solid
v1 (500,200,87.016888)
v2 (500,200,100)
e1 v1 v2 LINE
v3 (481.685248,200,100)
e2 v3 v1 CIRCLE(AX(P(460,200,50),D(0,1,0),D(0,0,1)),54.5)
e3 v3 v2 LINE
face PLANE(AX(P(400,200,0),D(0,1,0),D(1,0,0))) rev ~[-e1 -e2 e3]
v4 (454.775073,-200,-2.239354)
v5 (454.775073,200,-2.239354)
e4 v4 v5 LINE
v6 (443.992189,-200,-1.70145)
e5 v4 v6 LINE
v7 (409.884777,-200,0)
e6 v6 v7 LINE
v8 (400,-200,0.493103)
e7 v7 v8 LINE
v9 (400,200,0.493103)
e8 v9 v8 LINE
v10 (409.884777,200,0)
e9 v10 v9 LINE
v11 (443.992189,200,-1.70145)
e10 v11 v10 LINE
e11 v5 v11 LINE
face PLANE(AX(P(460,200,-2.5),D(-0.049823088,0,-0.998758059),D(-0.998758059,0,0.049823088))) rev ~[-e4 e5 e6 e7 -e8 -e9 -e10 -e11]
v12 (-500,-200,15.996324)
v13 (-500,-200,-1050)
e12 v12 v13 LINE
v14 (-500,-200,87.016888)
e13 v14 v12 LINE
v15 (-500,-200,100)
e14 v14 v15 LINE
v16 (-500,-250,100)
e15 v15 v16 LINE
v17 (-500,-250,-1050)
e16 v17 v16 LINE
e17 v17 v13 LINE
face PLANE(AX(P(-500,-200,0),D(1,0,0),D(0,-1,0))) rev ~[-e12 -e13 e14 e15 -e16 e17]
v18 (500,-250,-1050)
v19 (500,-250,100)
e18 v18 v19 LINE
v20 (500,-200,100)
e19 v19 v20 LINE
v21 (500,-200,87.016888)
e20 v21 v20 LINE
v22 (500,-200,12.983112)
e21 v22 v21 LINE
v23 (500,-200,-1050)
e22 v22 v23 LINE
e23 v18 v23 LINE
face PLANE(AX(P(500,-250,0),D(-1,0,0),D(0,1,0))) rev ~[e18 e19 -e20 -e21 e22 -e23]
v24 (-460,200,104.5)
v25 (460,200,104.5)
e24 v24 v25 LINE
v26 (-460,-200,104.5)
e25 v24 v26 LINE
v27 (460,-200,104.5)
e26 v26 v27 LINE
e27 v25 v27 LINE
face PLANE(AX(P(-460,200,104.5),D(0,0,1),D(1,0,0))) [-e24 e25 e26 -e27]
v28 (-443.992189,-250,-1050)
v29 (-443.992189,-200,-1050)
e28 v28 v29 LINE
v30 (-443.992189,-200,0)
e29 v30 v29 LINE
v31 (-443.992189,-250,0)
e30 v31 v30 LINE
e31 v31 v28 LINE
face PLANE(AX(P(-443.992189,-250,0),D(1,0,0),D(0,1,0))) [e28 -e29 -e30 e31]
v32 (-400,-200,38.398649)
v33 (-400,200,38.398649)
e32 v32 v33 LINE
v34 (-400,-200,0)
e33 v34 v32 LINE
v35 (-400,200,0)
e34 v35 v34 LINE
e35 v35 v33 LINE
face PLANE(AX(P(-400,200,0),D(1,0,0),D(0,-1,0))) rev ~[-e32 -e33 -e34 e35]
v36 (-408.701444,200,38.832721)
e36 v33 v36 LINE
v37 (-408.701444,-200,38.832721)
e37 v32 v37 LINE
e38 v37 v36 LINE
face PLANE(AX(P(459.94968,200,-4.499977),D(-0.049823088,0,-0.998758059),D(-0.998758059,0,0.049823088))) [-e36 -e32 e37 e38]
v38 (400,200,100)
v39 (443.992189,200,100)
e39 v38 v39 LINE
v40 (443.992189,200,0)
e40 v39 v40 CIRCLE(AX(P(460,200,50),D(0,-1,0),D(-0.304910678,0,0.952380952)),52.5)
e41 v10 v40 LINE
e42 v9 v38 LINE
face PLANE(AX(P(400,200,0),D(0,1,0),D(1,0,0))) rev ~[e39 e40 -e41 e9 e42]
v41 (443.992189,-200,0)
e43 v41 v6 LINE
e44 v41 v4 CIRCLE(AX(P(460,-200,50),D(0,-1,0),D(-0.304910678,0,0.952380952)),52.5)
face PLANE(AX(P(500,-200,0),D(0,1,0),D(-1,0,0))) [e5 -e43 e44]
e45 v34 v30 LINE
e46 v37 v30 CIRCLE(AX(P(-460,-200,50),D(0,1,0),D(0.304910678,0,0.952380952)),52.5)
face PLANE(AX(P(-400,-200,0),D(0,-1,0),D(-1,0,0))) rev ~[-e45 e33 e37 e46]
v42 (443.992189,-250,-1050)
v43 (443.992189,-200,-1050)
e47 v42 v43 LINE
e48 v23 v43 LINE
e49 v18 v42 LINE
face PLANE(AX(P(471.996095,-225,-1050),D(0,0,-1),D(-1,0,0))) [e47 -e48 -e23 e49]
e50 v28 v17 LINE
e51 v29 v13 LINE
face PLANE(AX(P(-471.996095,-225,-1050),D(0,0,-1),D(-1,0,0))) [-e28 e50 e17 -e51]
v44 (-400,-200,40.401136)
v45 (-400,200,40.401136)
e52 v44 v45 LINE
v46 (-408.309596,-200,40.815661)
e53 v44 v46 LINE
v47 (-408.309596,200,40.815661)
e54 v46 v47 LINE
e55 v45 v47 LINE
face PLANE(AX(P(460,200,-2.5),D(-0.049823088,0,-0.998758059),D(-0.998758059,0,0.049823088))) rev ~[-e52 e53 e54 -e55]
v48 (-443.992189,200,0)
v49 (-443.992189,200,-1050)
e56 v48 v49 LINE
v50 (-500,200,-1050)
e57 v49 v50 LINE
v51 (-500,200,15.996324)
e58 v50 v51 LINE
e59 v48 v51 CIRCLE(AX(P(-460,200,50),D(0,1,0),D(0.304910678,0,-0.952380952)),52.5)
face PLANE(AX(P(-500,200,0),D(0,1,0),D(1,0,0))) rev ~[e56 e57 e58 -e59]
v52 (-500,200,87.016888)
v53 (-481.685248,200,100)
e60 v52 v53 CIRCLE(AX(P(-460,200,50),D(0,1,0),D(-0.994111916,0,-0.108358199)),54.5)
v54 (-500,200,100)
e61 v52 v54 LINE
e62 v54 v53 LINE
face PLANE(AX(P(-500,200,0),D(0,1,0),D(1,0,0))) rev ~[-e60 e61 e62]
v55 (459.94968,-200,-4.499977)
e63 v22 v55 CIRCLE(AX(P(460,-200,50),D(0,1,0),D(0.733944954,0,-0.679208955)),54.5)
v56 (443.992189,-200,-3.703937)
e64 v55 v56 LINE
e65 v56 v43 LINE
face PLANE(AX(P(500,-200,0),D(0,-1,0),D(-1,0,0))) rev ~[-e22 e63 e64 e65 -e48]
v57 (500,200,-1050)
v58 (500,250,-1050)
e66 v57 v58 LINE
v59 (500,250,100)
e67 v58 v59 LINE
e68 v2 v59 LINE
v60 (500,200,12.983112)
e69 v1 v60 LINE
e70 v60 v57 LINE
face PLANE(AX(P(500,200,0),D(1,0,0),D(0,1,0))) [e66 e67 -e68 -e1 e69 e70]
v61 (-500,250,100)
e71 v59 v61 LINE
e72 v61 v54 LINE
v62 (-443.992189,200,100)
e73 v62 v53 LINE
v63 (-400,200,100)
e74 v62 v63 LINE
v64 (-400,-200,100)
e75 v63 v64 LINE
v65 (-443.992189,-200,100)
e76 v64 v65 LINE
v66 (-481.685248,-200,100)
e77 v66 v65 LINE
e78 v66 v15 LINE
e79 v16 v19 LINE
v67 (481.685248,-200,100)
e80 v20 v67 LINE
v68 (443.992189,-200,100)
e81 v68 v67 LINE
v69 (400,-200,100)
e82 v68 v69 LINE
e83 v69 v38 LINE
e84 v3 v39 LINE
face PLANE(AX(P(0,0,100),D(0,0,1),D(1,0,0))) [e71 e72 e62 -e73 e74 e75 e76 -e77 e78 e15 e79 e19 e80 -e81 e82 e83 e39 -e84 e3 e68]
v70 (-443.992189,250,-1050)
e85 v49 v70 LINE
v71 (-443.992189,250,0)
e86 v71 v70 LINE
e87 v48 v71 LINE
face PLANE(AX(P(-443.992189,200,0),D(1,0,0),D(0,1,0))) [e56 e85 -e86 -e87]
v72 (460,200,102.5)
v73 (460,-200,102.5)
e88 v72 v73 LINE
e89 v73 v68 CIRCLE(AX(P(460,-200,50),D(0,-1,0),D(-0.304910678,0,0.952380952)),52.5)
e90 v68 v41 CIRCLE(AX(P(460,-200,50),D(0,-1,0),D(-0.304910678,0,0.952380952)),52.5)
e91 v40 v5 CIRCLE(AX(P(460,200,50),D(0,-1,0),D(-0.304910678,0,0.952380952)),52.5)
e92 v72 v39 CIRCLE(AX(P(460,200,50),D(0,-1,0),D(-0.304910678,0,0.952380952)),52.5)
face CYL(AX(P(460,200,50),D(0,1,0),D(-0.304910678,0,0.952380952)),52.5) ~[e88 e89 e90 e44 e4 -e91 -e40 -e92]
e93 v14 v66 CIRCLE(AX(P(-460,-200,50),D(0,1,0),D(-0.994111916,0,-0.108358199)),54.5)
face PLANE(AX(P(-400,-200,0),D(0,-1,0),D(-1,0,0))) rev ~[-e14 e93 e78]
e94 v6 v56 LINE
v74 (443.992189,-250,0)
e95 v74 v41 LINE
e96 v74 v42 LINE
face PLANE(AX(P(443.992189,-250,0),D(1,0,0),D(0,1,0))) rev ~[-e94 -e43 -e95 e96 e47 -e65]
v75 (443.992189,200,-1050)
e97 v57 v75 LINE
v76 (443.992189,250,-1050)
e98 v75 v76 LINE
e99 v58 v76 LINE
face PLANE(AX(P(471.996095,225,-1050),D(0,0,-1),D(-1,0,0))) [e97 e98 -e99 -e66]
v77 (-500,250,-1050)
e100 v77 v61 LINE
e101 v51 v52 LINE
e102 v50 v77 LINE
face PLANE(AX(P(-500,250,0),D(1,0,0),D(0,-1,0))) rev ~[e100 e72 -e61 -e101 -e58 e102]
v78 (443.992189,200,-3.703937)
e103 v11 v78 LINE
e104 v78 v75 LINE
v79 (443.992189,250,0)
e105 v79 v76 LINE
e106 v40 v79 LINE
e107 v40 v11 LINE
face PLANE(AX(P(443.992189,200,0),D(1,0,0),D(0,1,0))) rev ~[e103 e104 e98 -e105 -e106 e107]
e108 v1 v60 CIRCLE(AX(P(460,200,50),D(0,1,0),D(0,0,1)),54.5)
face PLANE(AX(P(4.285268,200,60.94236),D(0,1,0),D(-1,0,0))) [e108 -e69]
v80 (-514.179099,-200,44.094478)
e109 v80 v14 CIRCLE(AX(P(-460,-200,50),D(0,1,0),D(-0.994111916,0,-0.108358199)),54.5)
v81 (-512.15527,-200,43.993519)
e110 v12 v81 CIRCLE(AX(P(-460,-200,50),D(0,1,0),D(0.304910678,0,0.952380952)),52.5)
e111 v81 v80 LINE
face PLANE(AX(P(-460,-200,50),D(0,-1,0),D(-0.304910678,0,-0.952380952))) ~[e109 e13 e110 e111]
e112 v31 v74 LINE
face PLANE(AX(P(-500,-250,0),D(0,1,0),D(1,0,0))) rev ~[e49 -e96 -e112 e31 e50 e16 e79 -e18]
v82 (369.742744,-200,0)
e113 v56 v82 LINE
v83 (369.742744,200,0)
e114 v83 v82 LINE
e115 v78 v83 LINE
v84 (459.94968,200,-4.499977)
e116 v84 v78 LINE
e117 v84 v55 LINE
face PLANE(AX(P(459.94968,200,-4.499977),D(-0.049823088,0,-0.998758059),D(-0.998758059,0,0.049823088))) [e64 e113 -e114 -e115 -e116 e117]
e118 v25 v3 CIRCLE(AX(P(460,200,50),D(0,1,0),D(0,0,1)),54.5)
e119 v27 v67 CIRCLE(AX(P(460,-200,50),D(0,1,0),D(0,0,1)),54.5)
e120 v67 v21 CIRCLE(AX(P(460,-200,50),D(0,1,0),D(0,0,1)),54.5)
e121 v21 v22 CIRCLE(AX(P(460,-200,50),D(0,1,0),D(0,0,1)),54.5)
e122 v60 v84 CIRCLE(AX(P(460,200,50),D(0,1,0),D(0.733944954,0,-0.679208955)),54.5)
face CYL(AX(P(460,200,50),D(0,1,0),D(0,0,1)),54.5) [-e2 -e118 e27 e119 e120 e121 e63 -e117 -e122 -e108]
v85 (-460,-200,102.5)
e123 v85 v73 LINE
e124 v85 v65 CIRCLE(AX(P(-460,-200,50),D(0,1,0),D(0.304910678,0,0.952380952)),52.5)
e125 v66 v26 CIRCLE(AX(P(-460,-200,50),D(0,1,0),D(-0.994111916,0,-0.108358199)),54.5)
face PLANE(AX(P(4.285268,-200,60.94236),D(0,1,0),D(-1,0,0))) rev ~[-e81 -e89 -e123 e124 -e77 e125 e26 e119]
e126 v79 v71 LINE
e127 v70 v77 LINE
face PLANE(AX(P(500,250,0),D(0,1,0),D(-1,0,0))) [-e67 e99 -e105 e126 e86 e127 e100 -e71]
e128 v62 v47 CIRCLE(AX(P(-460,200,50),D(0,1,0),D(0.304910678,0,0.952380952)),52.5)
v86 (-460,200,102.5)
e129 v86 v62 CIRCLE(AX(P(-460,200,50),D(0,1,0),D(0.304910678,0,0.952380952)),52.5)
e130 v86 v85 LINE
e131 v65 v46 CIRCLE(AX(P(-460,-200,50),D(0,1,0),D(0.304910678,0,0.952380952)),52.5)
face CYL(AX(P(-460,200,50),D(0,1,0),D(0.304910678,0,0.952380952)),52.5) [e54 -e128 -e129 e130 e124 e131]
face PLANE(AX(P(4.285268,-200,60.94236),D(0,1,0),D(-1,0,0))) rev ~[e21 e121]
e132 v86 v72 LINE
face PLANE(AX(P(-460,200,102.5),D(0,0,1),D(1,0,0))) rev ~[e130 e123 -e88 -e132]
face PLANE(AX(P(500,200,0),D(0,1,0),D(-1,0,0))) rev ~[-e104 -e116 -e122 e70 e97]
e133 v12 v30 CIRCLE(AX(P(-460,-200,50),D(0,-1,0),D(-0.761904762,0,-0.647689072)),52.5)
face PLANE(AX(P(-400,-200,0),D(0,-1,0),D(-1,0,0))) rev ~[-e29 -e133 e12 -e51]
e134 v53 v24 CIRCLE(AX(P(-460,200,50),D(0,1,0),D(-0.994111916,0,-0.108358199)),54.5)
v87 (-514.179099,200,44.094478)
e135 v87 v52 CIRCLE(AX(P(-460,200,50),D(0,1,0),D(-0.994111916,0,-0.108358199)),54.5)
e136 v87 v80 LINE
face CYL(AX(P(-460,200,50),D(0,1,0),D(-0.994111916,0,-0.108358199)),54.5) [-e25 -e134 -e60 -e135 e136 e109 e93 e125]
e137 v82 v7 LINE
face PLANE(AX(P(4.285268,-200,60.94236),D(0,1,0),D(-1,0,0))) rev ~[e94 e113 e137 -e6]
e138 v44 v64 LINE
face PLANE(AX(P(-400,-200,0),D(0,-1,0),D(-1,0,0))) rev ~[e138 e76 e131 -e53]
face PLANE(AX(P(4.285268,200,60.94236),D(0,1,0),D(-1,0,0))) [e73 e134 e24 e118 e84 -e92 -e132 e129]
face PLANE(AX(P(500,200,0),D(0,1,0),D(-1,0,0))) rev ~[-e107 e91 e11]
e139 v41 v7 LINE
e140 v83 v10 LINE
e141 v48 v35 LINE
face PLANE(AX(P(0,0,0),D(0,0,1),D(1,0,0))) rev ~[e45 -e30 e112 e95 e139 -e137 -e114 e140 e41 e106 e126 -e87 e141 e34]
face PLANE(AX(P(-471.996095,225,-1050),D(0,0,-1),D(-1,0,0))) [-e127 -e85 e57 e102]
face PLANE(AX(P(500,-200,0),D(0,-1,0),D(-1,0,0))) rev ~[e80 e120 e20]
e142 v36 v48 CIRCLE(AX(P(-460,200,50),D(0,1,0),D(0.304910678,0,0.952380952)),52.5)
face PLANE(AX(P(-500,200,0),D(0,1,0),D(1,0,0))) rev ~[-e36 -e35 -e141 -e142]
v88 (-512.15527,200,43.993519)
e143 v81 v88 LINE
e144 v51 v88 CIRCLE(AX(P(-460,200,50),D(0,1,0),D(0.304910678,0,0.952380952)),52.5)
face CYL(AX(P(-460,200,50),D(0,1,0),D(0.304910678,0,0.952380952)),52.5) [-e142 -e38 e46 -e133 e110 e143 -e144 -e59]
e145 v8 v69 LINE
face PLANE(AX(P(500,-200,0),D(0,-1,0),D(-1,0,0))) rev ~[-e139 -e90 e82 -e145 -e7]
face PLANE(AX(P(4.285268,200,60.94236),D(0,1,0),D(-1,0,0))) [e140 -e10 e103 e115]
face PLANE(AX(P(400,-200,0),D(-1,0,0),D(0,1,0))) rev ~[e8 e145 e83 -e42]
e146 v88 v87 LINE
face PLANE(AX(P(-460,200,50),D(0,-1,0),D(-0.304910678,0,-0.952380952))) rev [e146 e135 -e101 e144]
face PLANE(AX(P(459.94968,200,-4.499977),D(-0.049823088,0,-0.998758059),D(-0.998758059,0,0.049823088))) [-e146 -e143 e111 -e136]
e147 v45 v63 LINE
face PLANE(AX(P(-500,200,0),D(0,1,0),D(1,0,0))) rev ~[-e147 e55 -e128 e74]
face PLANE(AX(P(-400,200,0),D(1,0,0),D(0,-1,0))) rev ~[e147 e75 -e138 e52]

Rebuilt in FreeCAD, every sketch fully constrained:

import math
import FreeCAD as App
import Part
import Sketcher

V = App.Vector

doc = App.newDocument("Part")
body = doc.addObject("PartDesign::Body", "Body")

sketch1 = body.newObject("Sketcher::SketchObject", "Sketch")
sketch1.AttachmentSupport = (doc.getObject("XY_Plane"), [""])
sketch1.MapMode = "FlatFace"
sketch1.addGeometry(Part.LineSegment(V(-500, 200, 0), V(-400, 200, 0)), False)
sketch1.addGeometry(Part.LineSegment(V(-400, 200, 0), V(-400, -200, 0)), False)
sketch1.addGeometry(Part.LineSegment(V(-400, -200, 0), V(-500, -200, 0)), False)
sketch1.addGeometry(Part.LineSegment(V(-500, -200, 0), V(-500, -250, 0)), False)
sketch1.addGeometry(Part.LineSegment(V(-500, -250, 0), V(500, -250, 0)), False)
sketch1.addGeometry(Part.LineSegment(V(500, -250, 0), V(500, -200, 0)), False)
sketch1.addGeometry(Part.LineSegment(V(500, -200, 0), V(400, -200, 0)), False)
sketch1.addGeometry(Part.LineSegment(V(400, -200, 0), V(400, 200, 0)), False)
sketch1.addGeometry(Part.LineSegment(V(400, 200, 0), V(500, 200, 0)), False)
sketch1.addGeometry(Part.LineSegment(V(500, 200, 0), V(500, 250, 0)), False)
sketch1.addGeometry(Part.LineSegment(V(500, 250, 0), V(-500, 250, 0)), False)
sketch1.addGeometry(Part.LineSegment(V(-500, 250, 0), V(-500, 200, 0)), False)
sketch1.addConstraint(Sketcher.Constraint("Coincident", 0, 2, 1, 1))
sketch1.addConstraint(Sketcher.Constraint("Coincident", 1, 2, 2, 1))
sketch1.addConstraint(Sketcher.Constraint("Coincident", 2, 2, 3, 1))
sketch1.addConstraint(Sketcher.Constraint("Coincident", 3, 2, 4, 1))
sketch1.addConstraint(Sketcher.Constraint("Coincident", 4, 2, 5, 1))
sketch1.addConstraint(Sketcher.Constraint("Coincident", 5, 2, 6, 1))
sketch1.addConstraint(Sketcher.Constraint("Coincident", 6, 2, 7, 1))
sketch1.addConstraint(Sketcher.Constraint("Coincident", 7, 2, 8, 1))
sketch1.addConstraint(Sketcher.Constraint("Coincident", 8, 2, 9, 1))
sketch1.addConstraint(Sketcher.Constraint("Coincident", 9, 2, 10, 1))
sketch1.addConstraint(Sketcher.Constraint("Coincident", 10, 2, 11, 1))
sketch1.addConstraint(Sketcher.Constraint("Coincident", 11, 2, 0, 1))
sketch1.addConstraint(Sketcher.Constraint("Horizontal", 0))
sketch1.addConstraint(Sketcher.Constraint("Vertical", 1))
sketch1.addConstraint(Sketcher.Constraint("Horizontal", 2))
sketch1.addConstraint(Sketcher.Constraint("Vertical", 3))
sketch1.addConstraint(Sketcher.Constraint("Horizontal", 4))
sketch1.addConstraint(Sketcher.Constraint("Vertical", 5))
sketch1.addConstraint(Sketcher.Constraint("Horizontal", 6))
sketch1.addConstraint(Sketcher.Constraint("Vertical", 7))
sketch1.addConstraint(Sketcher.Constraint("Horizontal", 8))
sketch1.addConstraint(Sketcher.Constraint("Vertical", 9))
sketch1.addConstraint(Sketcher.Constraint("Horizontal", 10))
sketch1.addConstraint(Sketcher.Constraint("Vertical", 11))
sketch1.addConstraint(Sketcher.Constraint("Symmetric", 0, 2, 6, 2, -1, 1))
sketch1.addConstraint(Sketcher.Constraint("Symmetric", 2, 2, 8, 2, -1, 1))
sketch1.addConstraint(Sketcher.Constraint("Symmetric", 4, 2, 10, 2, -1, 1))
sketch1.addConstraint(Sketcher.Constraint("Symmetric", 2, 2, 5, 2, -2))
sketch1.addConstraint(Sketcher.Constraint("DistanceX", 0, 1, 0, 2, 100.0))
sketch1.addConstraint(Sketcher.Constraint("DistanceX", 4, 1, 4, 2, 1000.0))
sketch1.addConstraint(Sketcher.Constraint("DistanceY", 1, 2, 1, 1, 400.0))
sketch1.addConstraint(Sketcher.Constraint("DistanceY", 3, 2, 3, 1, 50.0))
pad1 = body.newObject("PartDesign::Pad", "Pad")
pad1.Profile = sketch1
pad1.Length = 100

sketch2 = body.newObject("Sketcher::SketchObject", "Sketch001")
sketch2.AttachmentSupport = (doc.getObject("XZ_Plane"), [""])
sketch2.MapMode = "FlatFace"
sketch2.AttachmentOffset = App.Placement(V(0, 0, -200), App.Rotation())
sketch2.addGeometry(Part.Circle(V(460, 50, 0), V(0, 0, 1), 52), False)
sketch2.addConstraint(Sketcher.Constraint("Diameter", 0, 105.0))
sketch2.addConstraint(Sketcher.Constraint("DistanceX", -1, 1, 0, 3, 460.0))
sketch2.addConstraint(Sketcher.Constraint("DistanceY", -1, 1, 0, 3, 50.0))
pad2 = body.newObject("PartDesign::Pad", "Pad001")
pad2.Profile = sketch2
pad2.Length = 400
doc.recompute()

mirrored = body.newObject("PartDesign::Mirrored", "Mirrored")
mirrored.Originals = [pad2]
mirrored.MirrorPlane = (doc.getObject("YZ_Plane"), [""])
body.Tip = mirrored

sketch3 = body.newObject("Sketcher::SketchObject", "Sketch002")
sketch3.AttachmentSupport = (doc.getObject("XZ_Plane"), [""])
sketch3.MapMode = "FlatFace"
sketch3.AttachmentOffset = App.Placement(V(0, 0, -200), App.Rotation())
sketch3.addGeometry(Part.LineSegment(V(-514, 44, 0), V(460, -4, 0)), False)
sketch3.addGeometry(Part.ArcOfCircle(Part.Circle(V(460, 50, 0), V(0, 0, 1), 54), math.radians(-90), math.radians(90)), False)
sketch3.addGeometry(Part.LineSegment(V(460, 104, 0), V(-460, 104, 0)), False)
sketch3.addGeometry(Part.ArcOfCircle(Part.Circle(V(-460, 50, 0), V(0, 0, 1), 54), math.radians(90), math.radians(186)), False)
sketch3.addGeometry(Part.LineSegment(V(-460, 102, 0), V(460, 102, 0)), False)
sketch3.addGeometry(Part.ArcOfCircle(Part.Circle(V(460, 50, 0), V(0, 0, 1), 52), math.radians(-90), math.radians(90)), False)
sketch3.addGeometry(Part.LineSegment(V(460, -2, 0), V(-512, 46, 0)), False)
sketch3.addGeometry(Part.ArcOfCircle(Part.Circle(V(-460, 50, 0), V(0, 0, 1), 52), math.radians(90), math.radians(184)), False)
sketch3.addConstraint(Sketcher.Constraint("Coincident", 0, 2, 1, 1))
sketch3.addConstraint(Sketcher.Constraint("Tangent", 1, 2, 2, 1))
sketch3.addConstraint(Sketcher.Constraint("Tangent", 2, 2, 3, 1))
sketch3.addConstraint(Sketcher.Constraint("Coincident", 3, 2, 0, 1))
sketch3.addConstraint(Sketcher.Constraint("Tangent", 4, 2, 5, 2))
sketch3.addConstraint(Sketcher.Constraint("Coincident", 5, 1, 6, 1))
sketch3.addConstraint(Sketcher.Constraint("Coincident", 6, 2, 7, 2))
sketch3.addConstraint(Sketcher.Constraint("Tangent", 7, 1, 4, 1))
sketch3.addConstraint(Sketcher.Constraint("Horizontal", 2))
sketch3.addConstraint(Sketcher.Constraint("Horizontal", 4))
sketch3.addConstraint(Sketcher.Constraint("Coincident", 5, 3, 1, 3))
sketch3.addConstraint(Sketcher.Constraint("Coincident", 7, 3, 3, 3))
sketch3.addConstraint(Sketcher.Constraint("Equal", 1, 3))
sketch3.addConstraint(Sketcher.Constraint("Parallel", 0, 6))
sketch3.addConstraint(Sketcher.Constraint("Vertical", 4, 2, 5, 1))
sketch3.addConstraint(Sketcher.Constraint("Radius", 1, 54.5))
sketch3.addConstraint(Sketcher.Constraint("Radius", 5, 52.5))
sketch3.addConstraint(Sketcher.Constraint("DistanceX", 2, 2, 2, 1, 920.0))
sketch3.addConstraint(Sketcher.Constraint("DistanceX", -1, 1, 1, 3, 460.0))
sketch3.addConstraint(Sketcher.Constraint("DistanceY", -1, 1, 1, 3, 50.0))
sketch3.addConstraint(Sketcher.Constraint("DistanceX", 3, 2, -1, 1, 514.179099))
sketch3.addConstraint(Sketcher.Constraint("DistanceX", -1, 1, 0, 2, 459.94968))
pad3 = body.newObject("PartDesign::Pad", "Pad002")
pad3.Profile = sketch3
pad3.Length = 400

sketch4 = body.newObject("Sketcher::SketchObject", "Sketch003")
sketch4.AttachmentSupport = (doc.getObject("XY_Plane"), [""])
sketch4.MapMode = "FlatFace"
sketch4.addGeometry(Part.LineSegment(V(500, 250, 0), V(500, 200, 0)), False)
sketch4.addGeometry(Part.LineSegment(V(500, 200, 0), V(444, 200, 0)), False)
sketch4.addGeometry(Part.LineSegment(V(444, 200, 0), V(444, 250, 0)), False)
sketch4.addGeometry(Part.LineSegment(V(444, 250, 0), V(500, 250, 0)), False)
sketch4.addGeometry(Part.LineSegment(V(-444, 250, 0), V(-444, 200, 0)), False)
sketch4.addGeometry(Part.LineSegment(V(-444, 200, 0), V(-500, 200, 0)), False)
sketch4.addGeometry(Part.LineSegment(V(-500, 200, 0), V(-500, 250, 0)), False)
sketch4.addGeometry(Part.LineSegment(V(-500, 250, 0), V(-444, 250, 0)), False)
sketch4.addGeometry(Part.LineSegment(V(-444, -200, 0), V(-444, -250, 0)), False)
sketch4.addGeometry(Part.LineSegment(V(-444, -250, 0), V(-500, -250, 0)), False)
sketch4.addGeometry(Part.LineSegment(V(-500, -250, 0), V(-500, -200, 0)), False)
sketch4.addGeometry(Part.LineSegment(V(-500, -200, 0), V(-444, -200, 0)), False)
sketch4.addGeometry(Part.LineSegment(V(500, -200, 0), V(500, -250, 0)), False)
sketch4.addGeometry(Part.LineSegment(V(500, -250, 0), V(444, -250, 0)), False)
sketch4.addGeometry(Part.LineSegment(V(444, -250, 0), V(444, -200, 0)), False)
sketch4.addGeometry(Part.LineSegment(V(444, -200, 0), V(500, -200, 0)), False)
sketch4.addConstraint(Sketcher.Constraint("Coincident", 0, 2, 1, 1))
sketch4.addConstraint(Sketcher.Constraint("Coincident", 1, 2, 2, 1))
sketch4.addConstraint(Sketcher.Constraint("Coincident", 2, 2, 3, 1))
sketch4.addConstraint(Sketcher.Constraint("Coincident", 3, 2, 0, 1))
sketch4.addConstraint(Sketcher.Constraint("Coincident", 4, 2, 5, 1))
sketch4.addConstraint(Sketcher.Constraint("Coincident", 5, 2, 6, 1))
sketch4.addConstraint(Sketcher.Constraint("Coincident", 6, 2, 7, 1))
sketch4.addConstraint(Sketcher.Constraint("Coincident", 7, 2, 4, 1))
sketch4.addConstraint(Sketcher.Constraint("Coincident", 8, 2, 9, 1))
sketch4.addConstraint(Sketcher.Constraint("Coincident", 9, 2, 10, 1))
sketch4.addConstraint(Sketcher.Constraint("Coincident", 10, 2, 11, 1))
sketch4.addConstraint(Sketcher.Constraint("Coincident", 11, 2, 8, 1))
sketch4.addConstraint(Sketcher.Constraint("Coincident", 12, 2, 13, 1))
sketch4.addConstraint(Sketcher.Constraint("Coincident", 13, 2, 14, 1))
sketch4.addConstraint(Sketcher.Constraint("Coincident", 14, 2, 15, 1))
sketch4.addConstraint(Sketcher.Constraint("Coincident", 15, 2, 12, 1))
sketch4.addConstraint(Sketcher.Constraint("Vertical", 0))
sketch4.addConstraint(Sketcher.Constraint("Horizontal", 1))
sketch4.addConstraint(Sketcher.Constraint("Vertical", 2))
sketch4.addConstraint(Sketcher.Constraint("Horizontal", 3))
sketch4.addConstraint(Sketcher.Constraint("Vertical", 4))
sketch4.addConstraint(Sketcher.Constraint("Horizontal", 5))
sketch4.addConstraint(Sketcher.Constraint("Vertical", 6))
sketch4.addConstraint(Sketcher.Constraint("Horizontal", 7))
sketch4.addConstraint(Sketcher.Constraint("Vertical", 8))
sketch4.addConstraint(Sketcher.Constraint("Horizontal", 9))
sketch4.addConstraint(Sketcher.Constraint("Vertical", 10))
sketch4.addConstraint(Sketcher.Constraint("Horizontal", 11))
sketch4.addConstraint(Sketcher.Constraint("Vertical", 12))
sketch4.addConstraint(Sketcher.Constraint("Horizontal", 13))
sketch4.addConstraint(Sketcher.Constraint("Vertical", 14))
sketch4.addConstraint(Sketcher.Constraint("Horizontal", 15))
sketch4.addConstraint(Sketcher.Constraint("Symmetric", 2, 2, 8, 2, -1, 1))
sketch4.addConstraint(Sketcher.Constraint("Symmetric", 0, 2, 10, 2, -1, 1))
sketch4.addConstraint(Sketcher.Constraint("Symmetric", 6, 2, 12, 2, -1, 1))
sketch4.addConstraint(Sketcher.Constraint("Symmetric", 4, 2, 14, 2, -1, 1))
sketch4.addConstraint(Sketcher.Constraint("Symmetric", 1, 2, 4, 2, -2))
sketch4.addConstraint(Sketcher.Constraint("Symmetric", 3, 2, 6, 2, -2))
sketch4.addConstraint(Sketcher.Constraint("DistanceY", 0, 2, 0, 1, 50.0))
sketch4.addConstraint(Sketcher.Constraint("DistanceX", -1, 1, 0, 2, 500.0))
sketch4.addConstraint(Sketcher.Constraint("DistanceY", -1, 1, 0, 2, 200.0))
sketch4.addConstraint(Sketcher.Constraint("DistanceX", 1, 2, 1, 1, 56.007811))
pad4 = body.newObject("PartDesign::Pad", "Pad003")
pad4.Profile = sketch4
pad4.Length = 1050
pad4.Reversed = True

doc.recompute()
